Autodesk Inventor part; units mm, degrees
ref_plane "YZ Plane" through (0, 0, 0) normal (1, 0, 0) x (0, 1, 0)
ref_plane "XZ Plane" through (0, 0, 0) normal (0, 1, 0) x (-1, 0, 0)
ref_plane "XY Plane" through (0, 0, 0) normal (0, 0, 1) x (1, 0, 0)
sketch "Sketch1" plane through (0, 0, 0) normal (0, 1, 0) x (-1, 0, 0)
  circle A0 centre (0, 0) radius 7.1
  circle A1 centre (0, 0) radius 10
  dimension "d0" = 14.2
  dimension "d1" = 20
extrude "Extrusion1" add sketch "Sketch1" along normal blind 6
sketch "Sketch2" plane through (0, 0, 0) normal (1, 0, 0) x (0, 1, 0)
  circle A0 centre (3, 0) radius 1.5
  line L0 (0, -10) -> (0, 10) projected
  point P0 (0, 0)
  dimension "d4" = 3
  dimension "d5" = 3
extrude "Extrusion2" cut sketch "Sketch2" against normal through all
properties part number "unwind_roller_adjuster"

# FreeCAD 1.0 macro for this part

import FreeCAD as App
import Part
import Sketcher
from FreeCAD import Vector
Q = App.Units.Quantity

doc = App.newDocument("Part")
body = doc.addObject("PartDesign::Body", "Body")

# Sketch on XZ plane
sketch1 = body.newObject("Sketcher::SketchObject", "Sketch")
sketch1.AttachmentSupport = (doc.getObject("XZ_Plane"), [""])
sketch1.MapMode = "FlatFace"
sketch1.addGeometry([
    Part.Circle(Vector(0, 0, 0), Vector(0, 0, 1), 10),
    Part.Circle(Vector(0, 0, 0), Vector(0, 0, 1), 7),
], False)
sketch1.addConstraint([
    Sketcher.Constraint("Coincident", 0, 3, -1, 1),
    Sketcher.Constraint("Coincident", 1, 3, -1, 1),
    Sketcher.Constraint("Diameter", 0, Q("20 mm")),
    Sketcher.Constraint("Diameter", 1, Q("14.2 mm")),
])
pad1 = body.newObject("PartDesign::Pad", "Pad")
pad1.Profile = sketch1
pad1.Length = 6
pad1.Reversed = True

# Sketch on YZ plane
sketch2 = body.newObject("Sketcher::SketchObject", "Sketch001")
sketch2.AttachmentSupport = (doc.getObject("YZ_Plane"), [""])
sketch2.MapMode = "FlatFace"
sketch2.addGeometry(Part.Circle(Vector(3, 0, 0), Vector(0, 0, 1), 1.5), False)
sketch2.addConstraint([
    Sketcher.Constraint("PointOnObject", 0, 3, -1),
    Sketcher.Constraint("Diameter", 0, Q("3 mm")),
    Sketcher.Constraint("DistanceX", -1, 1, 0, 3, Q("3 mm")),
])
pocket1 = body.newObject("PartDesign::Pocket", "Pocket")
pocket1.Profile = sketch2
pocket1.Type = "ThroughAll"

doc.recompute()
